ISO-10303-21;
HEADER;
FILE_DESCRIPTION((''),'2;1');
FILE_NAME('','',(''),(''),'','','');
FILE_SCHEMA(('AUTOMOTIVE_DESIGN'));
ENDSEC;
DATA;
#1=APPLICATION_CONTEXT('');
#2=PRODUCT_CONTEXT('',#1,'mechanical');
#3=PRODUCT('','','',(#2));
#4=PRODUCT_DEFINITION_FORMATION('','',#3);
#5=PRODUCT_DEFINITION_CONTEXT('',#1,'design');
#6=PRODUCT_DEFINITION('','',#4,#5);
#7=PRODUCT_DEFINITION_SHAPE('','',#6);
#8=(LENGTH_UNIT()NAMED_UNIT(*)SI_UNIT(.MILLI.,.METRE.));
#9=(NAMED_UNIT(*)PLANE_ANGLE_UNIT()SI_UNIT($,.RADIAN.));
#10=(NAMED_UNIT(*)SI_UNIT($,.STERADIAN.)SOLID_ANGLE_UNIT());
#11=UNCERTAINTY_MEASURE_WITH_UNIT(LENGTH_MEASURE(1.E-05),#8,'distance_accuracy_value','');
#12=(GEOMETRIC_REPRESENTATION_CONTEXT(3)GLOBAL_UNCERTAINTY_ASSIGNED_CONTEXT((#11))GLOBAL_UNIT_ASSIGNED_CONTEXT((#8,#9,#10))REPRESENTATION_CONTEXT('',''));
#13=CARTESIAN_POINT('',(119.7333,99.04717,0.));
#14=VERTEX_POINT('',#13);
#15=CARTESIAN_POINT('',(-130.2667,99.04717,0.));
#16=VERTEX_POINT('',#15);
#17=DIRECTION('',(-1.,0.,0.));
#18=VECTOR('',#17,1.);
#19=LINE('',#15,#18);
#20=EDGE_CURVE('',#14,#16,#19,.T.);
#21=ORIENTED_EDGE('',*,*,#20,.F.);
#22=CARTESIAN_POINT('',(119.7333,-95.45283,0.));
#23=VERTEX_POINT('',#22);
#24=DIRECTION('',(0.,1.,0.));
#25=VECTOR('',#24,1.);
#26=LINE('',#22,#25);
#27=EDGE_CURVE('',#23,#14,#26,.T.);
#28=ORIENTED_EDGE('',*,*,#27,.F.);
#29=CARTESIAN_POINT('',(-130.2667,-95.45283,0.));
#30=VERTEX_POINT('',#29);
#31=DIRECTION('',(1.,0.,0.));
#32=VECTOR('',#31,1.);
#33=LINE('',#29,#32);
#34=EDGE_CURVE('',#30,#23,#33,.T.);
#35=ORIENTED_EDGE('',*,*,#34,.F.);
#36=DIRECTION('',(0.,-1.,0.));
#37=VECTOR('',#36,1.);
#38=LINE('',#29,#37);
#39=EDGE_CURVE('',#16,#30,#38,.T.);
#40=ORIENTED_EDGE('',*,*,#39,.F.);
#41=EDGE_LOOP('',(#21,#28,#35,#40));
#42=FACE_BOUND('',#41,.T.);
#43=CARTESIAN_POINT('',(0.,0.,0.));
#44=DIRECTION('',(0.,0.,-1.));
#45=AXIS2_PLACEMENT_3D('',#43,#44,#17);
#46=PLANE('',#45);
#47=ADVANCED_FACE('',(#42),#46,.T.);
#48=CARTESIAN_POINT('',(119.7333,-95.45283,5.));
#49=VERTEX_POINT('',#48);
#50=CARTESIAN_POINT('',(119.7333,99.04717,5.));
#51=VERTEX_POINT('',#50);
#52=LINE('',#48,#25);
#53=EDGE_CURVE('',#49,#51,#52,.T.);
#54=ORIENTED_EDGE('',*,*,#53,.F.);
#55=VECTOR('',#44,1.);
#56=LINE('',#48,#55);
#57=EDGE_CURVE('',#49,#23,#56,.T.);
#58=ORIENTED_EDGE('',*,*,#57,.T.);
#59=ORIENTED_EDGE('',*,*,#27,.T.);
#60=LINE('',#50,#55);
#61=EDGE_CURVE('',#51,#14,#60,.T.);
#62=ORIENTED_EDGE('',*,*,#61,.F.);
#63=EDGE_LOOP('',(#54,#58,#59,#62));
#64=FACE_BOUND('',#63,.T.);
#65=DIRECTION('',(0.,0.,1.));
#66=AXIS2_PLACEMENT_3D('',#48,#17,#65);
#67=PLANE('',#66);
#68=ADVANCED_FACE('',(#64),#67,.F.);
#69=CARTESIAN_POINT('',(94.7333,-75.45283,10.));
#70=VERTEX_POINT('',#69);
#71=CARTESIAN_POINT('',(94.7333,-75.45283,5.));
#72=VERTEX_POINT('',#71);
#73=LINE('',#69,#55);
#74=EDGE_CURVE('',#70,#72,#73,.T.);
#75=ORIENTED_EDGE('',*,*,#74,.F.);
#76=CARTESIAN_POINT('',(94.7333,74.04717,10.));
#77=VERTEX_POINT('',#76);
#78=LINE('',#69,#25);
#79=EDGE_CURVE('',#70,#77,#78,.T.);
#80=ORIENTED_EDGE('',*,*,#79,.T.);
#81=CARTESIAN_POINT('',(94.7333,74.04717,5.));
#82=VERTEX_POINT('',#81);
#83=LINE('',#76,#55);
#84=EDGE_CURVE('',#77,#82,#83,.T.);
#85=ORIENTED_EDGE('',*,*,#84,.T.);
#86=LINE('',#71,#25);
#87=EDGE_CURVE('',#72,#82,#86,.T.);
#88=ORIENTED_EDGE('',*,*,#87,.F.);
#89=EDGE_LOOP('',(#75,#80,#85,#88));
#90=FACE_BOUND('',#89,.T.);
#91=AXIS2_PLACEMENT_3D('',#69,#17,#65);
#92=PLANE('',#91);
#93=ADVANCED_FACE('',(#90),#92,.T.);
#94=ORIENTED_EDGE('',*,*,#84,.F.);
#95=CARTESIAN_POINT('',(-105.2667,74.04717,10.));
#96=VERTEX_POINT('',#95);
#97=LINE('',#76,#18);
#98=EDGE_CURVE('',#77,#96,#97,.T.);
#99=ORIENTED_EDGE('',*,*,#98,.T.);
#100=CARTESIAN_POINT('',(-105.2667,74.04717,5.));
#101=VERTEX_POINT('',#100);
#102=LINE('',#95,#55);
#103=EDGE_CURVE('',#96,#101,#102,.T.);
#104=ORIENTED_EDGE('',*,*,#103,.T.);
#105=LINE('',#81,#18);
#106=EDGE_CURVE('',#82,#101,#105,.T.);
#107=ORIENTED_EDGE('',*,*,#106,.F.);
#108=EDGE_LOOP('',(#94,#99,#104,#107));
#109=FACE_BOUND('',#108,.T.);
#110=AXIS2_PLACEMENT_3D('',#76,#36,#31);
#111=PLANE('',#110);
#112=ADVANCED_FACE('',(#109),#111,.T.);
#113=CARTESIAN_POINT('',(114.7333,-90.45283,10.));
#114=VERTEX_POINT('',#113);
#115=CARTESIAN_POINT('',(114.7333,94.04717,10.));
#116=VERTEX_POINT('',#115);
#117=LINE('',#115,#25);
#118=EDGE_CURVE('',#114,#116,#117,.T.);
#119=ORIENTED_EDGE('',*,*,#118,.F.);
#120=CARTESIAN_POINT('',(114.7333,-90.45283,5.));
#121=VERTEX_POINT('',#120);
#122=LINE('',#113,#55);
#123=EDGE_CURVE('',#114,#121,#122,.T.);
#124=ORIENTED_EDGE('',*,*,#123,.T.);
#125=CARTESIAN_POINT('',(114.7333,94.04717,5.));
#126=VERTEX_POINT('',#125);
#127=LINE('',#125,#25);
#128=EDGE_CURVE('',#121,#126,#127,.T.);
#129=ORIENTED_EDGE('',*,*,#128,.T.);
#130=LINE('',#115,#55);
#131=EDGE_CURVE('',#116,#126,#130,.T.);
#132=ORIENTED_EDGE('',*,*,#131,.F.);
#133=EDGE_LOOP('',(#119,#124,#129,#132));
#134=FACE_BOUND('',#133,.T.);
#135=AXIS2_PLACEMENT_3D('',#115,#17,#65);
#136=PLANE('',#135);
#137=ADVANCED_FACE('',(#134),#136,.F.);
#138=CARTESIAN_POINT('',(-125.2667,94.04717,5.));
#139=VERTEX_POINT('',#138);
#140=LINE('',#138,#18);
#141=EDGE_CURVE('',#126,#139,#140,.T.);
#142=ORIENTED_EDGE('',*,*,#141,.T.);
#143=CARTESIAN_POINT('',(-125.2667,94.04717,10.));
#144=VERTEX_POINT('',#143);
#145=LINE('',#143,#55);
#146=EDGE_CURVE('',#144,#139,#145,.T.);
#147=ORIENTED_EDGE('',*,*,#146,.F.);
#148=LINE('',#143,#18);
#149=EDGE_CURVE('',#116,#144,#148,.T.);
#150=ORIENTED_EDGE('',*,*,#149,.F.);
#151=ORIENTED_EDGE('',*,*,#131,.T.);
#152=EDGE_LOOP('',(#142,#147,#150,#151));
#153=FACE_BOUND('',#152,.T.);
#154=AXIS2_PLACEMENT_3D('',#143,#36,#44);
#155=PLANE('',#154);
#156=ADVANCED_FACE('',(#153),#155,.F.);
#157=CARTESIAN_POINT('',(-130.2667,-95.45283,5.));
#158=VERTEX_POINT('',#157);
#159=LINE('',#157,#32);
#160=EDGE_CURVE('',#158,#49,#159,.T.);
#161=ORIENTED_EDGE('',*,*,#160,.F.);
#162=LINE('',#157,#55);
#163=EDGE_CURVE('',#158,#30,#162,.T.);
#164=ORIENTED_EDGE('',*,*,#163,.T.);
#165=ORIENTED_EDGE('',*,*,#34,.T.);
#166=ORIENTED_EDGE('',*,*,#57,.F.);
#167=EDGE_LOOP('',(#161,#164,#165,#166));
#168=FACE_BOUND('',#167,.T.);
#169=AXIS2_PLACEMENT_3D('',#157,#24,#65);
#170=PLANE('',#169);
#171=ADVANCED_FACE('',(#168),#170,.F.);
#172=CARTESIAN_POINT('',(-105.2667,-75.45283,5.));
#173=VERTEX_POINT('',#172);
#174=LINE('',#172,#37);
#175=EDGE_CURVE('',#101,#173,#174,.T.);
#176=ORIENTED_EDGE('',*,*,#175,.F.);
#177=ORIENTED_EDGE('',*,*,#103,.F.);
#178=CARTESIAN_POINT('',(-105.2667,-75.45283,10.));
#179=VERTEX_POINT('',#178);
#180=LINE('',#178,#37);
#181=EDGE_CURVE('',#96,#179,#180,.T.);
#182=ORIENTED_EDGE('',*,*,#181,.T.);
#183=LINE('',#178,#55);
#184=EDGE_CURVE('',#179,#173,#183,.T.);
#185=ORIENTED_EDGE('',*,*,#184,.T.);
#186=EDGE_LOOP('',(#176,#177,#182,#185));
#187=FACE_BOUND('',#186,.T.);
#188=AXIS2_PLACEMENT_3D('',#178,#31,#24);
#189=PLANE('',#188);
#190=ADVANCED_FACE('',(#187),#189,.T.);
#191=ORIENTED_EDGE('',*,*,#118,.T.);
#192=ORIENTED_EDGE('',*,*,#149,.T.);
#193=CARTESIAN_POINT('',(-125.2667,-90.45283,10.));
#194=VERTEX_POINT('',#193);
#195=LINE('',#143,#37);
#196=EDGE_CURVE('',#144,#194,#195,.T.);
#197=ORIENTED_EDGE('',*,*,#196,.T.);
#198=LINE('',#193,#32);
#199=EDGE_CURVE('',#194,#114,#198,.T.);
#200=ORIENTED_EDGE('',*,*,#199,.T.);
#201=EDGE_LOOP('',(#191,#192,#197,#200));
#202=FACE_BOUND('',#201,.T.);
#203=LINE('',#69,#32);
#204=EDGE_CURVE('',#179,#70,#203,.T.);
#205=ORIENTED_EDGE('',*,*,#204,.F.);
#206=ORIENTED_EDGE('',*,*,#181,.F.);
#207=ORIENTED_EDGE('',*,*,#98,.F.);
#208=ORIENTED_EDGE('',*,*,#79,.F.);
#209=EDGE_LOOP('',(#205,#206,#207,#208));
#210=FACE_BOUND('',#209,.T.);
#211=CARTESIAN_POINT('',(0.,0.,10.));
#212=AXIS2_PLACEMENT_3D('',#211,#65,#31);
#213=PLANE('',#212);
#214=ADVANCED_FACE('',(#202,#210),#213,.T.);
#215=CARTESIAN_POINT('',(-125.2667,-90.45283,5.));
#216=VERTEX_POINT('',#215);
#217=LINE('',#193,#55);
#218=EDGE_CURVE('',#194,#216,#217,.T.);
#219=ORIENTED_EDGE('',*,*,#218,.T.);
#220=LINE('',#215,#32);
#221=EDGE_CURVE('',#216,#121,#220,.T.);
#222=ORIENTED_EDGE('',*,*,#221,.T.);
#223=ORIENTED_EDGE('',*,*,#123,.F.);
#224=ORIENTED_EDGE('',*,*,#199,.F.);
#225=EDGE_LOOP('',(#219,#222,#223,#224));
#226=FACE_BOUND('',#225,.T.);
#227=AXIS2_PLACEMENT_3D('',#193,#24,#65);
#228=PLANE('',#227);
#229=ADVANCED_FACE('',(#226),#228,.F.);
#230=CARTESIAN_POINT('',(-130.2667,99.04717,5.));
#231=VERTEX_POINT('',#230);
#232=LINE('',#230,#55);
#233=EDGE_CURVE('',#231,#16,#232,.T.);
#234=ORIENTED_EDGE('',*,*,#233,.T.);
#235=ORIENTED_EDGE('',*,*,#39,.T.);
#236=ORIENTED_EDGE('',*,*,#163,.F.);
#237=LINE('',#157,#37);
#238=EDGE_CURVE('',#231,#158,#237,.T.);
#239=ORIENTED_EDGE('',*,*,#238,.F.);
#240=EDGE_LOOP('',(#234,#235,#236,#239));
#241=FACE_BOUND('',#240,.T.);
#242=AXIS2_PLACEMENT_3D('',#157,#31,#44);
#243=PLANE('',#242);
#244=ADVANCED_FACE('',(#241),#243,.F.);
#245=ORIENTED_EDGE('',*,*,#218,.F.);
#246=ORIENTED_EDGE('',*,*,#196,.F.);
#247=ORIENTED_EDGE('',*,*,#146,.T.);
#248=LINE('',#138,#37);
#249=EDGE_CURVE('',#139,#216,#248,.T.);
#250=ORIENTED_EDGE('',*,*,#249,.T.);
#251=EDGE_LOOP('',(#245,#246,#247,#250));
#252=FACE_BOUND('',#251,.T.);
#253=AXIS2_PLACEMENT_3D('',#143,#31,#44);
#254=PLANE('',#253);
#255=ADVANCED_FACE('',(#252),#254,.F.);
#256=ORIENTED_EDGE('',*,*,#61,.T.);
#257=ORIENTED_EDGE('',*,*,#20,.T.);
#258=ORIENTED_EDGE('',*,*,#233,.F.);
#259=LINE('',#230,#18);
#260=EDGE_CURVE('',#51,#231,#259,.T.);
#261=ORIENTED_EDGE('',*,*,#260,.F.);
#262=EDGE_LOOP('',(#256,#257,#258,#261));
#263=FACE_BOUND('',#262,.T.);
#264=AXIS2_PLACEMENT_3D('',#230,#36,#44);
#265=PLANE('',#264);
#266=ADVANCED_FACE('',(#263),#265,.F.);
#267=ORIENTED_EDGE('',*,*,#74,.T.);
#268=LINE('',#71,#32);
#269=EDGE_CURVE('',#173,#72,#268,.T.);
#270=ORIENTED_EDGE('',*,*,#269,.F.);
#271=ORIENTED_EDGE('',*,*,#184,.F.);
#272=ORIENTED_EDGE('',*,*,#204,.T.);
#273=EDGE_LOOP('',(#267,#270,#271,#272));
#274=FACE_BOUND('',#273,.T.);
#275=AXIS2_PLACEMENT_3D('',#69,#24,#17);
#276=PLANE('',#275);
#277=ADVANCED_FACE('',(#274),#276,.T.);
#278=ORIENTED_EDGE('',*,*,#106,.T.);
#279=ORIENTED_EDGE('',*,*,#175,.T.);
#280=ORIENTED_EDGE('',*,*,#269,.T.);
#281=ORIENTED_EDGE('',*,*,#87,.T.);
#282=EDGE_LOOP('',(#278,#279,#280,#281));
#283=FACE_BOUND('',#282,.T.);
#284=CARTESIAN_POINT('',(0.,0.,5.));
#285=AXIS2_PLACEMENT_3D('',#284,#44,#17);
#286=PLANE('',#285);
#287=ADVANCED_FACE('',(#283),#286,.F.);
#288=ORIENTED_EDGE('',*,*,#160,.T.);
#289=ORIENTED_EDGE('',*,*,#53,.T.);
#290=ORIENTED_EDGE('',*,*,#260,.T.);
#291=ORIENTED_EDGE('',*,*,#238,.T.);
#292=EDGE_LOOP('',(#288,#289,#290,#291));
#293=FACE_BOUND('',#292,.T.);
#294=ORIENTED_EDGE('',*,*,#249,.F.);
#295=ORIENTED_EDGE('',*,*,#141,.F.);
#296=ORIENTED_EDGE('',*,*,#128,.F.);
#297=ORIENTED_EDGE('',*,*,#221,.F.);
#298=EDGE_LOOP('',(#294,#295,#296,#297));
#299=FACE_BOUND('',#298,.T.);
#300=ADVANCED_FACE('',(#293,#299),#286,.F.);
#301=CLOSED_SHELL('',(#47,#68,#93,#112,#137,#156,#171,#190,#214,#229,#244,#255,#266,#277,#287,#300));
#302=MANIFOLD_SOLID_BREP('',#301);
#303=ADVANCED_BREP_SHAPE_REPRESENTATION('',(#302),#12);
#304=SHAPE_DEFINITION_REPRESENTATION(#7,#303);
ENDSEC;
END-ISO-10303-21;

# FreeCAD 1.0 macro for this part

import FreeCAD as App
import Part
import Sketcher
Q = App.Units.Quantity


def add_polygon(sketch, points):
    """Adds a closed chain of lines whose ends are joined by coincident constraints."""
    first, n = sketch.GeometryCount, len(points)
    for a, b in zip(points, points[1:] + points[:1]):
        sketch.addGeometry(Part.LineSegment(App.Vector(*a, 0), App.Vector(*b, 0)), False)
    for i in range(n):
        sketch.addConstraint(Sketcher.Constraint("Coincident", first + i, 2, first + (i + 1) % n, 1))

doc = App.newDocument("Part")
params = doc.addObject("Spreadsheet::Sheet", "Params")
for row, (alias, value) in enumerate([
    ("sketch1_width", "250 mm"),
    ("sketch1_height", "194.5 mm"),
    ("pad1_length", "5 mm"),
    ("sketch2_width", "240 mm"),
    ("sketch2_width2", "200 mm"),
    ("sketch2_height", "184.5 mm"),
    ("sketch2_height2", "149.5 mm"),
    ("pad2_length", "5 mm"),
], start=1):
    params.set(f"A{row}", alias)
    params.set(f"B{row}", "=" + value)
    params.setAlias(f"B{row}", alias)

body = doc.addObject("PartDesign::Body", "Body")

# Sketch on XY plane
sketch1 = body.newObject("Sketcher::SketchObject", "Sketch")
sketch1.AttachmentSupport = (doc.getObject("XY_Plane"), [""])
sketch1.MapMode = "FlatFace"
add_polygon(sketch1, [(-130, 99), (-130, -95), (120, -95), (120, 99)])  # lines 0-3
sketch1.addConstraint(Sketcher.Constraint("Vertical", 0))
sketch1.addConstraint(Sketcher.Constraint("Horizontal", 1))
sketch1.addConstraint(Sketcher.Constraint("Vertical", 2))
sketch1.addConstraint(Sketcher.Constraint("Horizontal", 3))
sketch1.addConstraint(Sketcher.Constraint("DistanceX", 1, 1, 1, 2, Q("250 mm")))
sketch1.addConstraint(Sketcher.Constraint("DistanceY", 0, 2, 0, 1, Q("194.5 mm")))
sketch1.addConstraint(Sketcher.Constraint("DistanceX", 0, 2, -1, 1, Q("130.2667 mm")))
sketch1.addConstraint(Sketcher.Constraint("DistanceY", 0, 2, -1, 1, Q("95.45283 mm")))
sketch1.setExpression("Constraints[8]", "Params.sketch1_width")
sketch1.setExpression("Constraints[9]", "Params.sketch1_height")
pad1 = body.newObject("PartDesign::Pad", "Pad")
pad1.Profile = sketch1
pad1.setExpression("Length", "Params.pad1_length")

# Sketch on XY plane
sketch2 = body.newObject("Sketcher::SketchObject", "Sketch001")
sketch2.AttachmentSupport = (doc.getObject("XY_Plane"), [""])
sketch2.MapMode = "FlatFace"
sketch2.AttachmentOffset = App.Placement(App.Vector(0, 0, 5), App.Rotation())
add_polygon(sketch2, [(-125, 94), (-125, -90), (115, -90), (115, 94)])  # lines 0-3
add_polygon(sketch2, [(95, -75), (-105, -75), (-105, 74), (95, 74)])  # lines 4-7
sketch2.addConstraint(Sketcher.Constraint("Vertical", 0))
sketch2.addConstraint(Sketcher.Constraint("Horizontal", 1))
sketch2.addConstraint(Sketcher.Constraint("Vertical", 2))
sketch2.addConstraint(Sketcher.Constraint("Horizontal", 3))
sketch2.addConstraint(Sketcher.Constraint("Horizontal", 4))
sketch2.addConstraint(Sketcher.Constraint("Vertical", 5))
sketch2.addConstraint(Sketcher.Constraint("Horizontal", 6))
sketch2.addConstraint(Sketcher.Constraint("Vertical", 7))
sketch2.addConstraint(Sketcher.Constraint("DistanceX", 1, 1, 1, 2, Q("240 mm")))
sketch2.addConstraint(Sketcher.Constraint("DistanceX", 4, 2, 4, 1, Q("200 mm")))
sketch2.addConstraint(Sketcher.Constraint("DistanceY", 0, 2, 0, 1, Q("184.5 mm")))
sketch2.addConstraint(Sketcher.Constraint("DistanceY", 5, 1, 5, 2, Q("149.5 mm")))
sketch2.addConstraint(Sketcher.Constraint("DistanceX", 0, 2, 4, 2, Q("20 mm")))
sketch2.addConstraint(Sketcher.Constraint("DistanceY", 0, 2, 4, 2, Q("15 mm")))
sketch2.addConstraint(Sketcher.Constraint("DistanceX", 0, 2, -1, 1, Q("125.2667 mm")))
sketch2.addConstraint(Sketcher.Constraint("DistanceY", 0, 2, -1, 1, Q("90.45283 mm")))
sketch2.setExpression("Constraints[16]", "Params.sketch2_width")
sketch2.setExpression("Constraints[17]", "Params.sketch2_width2")
sketch2.setExpression("Constraints[18]", "Params.sketch2_height")
sketch2.setExpression("Constraints[19]", "Params.sketch2_height2")
pad2 = body.newObject("PartDesign::Pad", "Pad001")
pad2.Profile = sketch2
pad2.setExpression("Length", "Params.pad2_length")

doc.recompute()
